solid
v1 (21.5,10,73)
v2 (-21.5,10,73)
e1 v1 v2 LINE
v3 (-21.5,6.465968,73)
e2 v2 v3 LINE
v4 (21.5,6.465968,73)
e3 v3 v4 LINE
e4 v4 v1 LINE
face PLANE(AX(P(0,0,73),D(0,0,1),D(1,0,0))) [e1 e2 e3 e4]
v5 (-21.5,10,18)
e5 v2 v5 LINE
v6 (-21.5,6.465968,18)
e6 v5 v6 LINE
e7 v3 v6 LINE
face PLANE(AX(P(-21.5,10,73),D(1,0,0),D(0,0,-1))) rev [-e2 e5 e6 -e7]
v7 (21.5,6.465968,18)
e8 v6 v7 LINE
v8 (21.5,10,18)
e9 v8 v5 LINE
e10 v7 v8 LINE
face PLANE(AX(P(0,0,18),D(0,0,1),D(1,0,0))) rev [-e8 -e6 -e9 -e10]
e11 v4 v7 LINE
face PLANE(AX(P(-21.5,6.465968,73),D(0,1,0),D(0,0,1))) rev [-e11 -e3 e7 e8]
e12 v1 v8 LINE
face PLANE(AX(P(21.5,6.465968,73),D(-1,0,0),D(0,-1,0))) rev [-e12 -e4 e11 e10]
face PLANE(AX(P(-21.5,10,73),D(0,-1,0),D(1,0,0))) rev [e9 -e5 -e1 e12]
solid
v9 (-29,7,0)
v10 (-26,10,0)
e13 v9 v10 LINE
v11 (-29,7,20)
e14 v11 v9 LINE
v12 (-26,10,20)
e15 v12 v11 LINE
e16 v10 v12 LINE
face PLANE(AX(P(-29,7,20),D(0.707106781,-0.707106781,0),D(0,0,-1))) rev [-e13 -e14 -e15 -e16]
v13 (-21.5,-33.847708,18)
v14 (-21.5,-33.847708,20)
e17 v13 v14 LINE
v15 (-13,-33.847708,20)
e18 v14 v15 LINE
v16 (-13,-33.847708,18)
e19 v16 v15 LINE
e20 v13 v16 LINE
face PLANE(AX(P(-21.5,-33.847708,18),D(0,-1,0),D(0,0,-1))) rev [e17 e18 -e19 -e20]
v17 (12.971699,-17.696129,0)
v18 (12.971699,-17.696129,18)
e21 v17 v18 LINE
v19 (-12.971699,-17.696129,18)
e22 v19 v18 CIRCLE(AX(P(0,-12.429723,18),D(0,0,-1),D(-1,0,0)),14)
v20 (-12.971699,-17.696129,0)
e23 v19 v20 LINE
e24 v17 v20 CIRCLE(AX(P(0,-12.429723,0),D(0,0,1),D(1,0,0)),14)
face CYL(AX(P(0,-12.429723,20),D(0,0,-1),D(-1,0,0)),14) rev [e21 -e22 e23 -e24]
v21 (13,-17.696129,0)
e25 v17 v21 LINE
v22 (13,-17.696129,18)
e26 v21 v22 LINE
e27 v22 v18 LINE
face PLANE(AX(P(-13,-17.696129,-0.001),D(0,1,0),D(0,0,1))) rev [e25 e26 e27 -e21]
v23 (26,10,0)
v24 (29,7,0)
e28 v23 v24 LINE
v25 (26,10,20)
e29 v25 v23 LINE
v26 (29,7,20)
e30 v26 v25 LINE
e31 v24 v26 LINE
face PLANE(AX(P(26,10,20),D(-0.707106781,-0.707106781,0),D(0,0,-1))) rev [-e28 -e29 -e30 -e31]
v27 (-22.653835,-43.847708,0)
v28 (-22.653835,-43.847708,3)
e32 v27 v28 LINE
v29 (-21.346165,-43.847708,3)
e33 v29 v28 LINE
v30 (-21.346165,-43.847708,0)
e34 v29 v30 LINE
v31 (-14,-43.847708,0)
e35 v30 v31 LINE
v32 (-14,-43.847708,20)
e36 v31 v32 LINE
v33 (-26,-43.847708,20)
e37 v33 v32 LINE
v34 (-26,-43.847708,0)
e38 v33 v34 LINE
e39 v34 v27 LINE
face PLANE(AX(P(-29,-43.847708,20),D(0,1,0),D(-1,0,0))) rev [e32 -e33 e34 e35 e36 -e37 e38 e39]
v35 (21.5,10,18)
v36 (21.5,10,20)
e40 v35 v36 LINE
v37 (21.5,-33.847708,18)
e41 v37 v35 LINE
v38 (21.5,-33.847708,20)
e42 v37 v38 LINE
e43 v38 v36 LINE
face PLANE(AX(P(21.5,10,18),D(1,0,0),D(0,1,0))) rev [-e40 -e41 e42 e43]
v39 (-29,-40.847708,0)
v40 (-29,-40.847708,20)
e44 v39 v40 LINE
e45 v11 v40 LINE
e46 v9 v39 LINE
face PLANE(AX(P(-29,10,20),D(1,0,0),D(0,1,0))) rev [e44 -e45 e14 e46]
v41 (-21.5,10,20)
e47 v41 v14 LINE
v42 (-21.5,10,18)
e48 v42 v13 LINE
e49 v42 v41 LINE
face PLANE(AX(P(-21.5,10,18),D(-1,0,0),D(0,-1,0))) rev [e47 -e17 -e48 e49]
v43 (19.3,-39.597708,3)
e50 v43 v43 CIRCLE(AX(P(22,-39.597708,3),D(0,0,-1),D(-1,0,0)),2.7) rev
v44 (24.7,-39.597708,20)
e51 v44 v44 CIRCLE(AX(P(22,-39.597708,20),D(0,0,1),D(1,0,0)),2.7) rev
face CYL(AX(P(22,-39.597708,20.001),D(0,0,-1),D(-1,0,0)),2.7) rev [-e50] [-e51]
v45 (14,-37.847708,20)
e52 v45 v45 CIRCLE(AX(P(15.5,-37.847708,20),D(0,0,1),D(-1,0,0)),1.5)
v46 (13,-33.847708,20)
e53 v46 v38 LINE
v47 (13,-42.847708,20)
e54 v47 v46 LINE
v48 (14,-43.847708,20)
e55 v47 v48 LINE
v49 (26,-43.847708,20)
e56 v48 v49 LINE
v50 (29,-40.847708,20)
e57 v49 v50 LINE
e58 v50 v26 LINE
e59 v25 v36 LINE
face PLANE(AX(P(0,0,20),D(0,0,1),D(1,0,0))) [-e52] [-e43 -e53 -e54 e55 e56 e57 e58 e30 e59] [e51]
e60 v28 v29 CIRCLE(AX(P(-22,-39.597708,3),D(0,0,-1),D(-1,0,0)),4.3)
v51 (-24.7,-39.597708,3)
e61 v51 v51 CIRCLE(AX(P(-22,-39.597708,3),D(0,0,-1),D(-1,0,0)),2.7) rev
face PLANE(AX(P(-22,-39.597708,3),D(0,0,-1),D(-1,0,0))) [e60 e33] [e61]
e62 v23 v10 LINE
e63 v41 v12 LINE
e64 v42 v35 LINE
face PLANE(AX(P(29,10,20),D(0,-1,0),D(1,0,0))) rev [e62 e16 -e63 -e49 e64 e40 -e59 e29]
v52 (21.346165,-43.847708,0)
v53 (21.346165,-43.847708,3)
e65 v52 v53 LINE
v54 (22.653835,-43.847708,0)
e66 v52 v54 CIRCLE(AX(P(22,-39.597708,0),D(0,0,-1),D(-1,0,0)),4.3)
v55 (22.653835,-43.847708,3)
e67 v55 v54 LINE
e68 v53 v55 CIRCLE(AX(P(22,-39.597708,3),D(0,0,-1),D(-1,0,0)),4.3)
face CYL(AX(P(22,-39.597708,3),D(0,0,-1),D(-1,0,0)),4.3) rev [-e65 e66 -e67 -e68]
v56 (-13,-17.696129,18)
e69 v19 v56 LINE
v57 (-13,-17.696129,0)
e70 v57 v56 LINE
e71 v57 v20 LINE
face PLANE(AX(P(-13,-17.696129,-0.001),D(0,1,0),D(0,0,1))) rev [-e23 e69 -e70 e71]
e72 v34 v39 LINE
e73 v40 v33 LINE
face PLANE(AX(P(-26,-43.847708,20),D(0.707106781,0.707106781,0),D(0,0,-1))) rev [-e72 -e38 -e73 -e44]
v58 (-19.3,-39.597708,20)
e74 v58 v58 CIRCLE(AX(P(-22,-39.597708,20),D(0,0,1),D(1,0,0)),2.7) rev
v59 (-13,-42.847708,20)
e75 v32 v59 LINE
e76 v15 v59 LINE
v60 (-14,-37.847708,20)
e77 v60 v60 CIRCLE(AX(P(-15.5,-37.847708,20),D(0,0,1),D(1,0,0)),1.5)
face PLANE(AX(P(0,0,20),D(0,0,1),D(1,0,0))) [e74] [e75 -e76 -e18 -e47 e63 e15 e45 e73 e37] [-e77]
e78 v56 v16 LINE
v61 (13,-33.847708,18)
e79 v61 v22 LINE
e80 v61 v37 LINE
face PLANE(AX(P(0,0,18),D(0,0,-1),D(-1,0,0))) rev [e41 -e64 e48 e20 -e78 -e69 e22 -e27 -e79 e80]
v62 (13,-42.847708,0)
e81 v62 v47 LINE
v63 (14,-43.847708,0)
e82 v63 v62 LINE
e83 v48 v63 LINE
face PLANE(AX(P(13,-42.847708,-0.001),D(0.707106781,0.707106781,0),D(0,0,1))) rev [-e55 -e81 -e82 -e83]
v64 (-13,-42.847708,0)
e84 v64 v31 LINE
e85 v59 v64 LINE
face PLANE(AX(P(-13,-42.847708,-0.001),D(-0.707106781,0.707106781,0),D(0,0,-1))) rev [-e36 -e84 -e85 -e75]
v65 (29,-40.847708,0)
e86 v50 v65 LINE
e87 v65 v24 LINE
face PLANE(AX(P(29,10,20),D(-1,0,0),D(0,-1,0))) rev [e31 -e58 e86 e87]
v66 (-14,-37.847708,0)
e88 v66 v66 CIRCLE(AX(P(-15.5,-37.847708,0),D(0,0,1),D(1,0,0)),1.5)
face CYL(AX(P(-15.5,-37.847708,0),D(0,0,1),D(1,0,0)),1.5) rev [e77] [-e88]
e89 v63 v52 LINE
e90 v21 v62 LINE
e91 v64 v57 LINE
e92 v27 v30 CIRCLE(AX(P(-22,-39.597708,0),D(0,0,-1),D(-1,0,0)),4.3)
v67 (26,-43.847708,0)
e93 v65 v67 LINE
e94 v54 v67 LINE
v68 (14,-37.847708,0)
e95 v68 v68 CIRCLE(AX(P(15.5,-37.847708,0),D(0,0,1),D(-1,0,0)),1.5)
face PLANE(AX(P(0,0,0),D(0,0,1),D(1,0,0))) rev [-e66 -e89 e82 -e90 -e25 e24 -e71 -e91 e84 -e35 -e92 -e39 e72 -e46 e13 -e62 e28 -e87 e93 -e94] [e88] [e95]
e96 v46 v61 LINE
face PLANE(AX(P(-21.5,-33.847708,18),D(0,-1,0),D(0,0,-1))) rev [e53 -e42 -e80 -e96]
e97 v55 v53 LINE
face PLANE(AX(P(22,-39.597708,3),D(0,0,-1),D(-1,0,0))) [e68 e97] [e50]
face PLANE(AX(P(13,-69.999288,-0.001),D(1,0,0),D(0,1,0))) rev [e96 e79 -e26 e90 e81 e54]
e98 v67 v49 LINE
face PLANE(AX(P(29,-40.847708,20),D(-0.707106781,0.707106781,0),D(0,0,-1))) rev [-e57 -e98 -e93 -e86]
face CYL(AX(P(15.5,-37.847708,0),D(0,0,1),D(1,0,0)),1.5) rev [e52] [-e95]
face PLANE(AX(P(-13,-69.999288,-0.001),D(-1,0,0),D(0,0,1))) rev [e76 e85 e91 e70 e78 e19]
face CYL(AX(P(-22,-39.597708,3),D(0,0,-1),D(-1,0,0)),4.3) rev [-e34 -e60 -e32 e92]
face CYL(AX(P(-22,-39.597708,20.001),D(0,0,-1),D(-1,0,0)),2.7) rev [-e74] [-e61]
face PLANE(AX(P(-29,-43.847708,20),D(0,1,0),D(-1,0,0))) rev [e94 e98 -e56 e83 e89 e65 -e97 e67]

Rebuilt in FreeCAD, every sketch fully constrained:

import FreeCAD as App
import Part
import Sketcher
from FreeCAD import Vector
Q = App.Units.Quantity


def edges_at(feature, points):
    """Names of the edges that pass closest to the given points."""
    edges = feature.Shape.Edges
    near = lambda p: min(range(len(edges)), key=lambda i: edges[i].distToShape(Part.Vertex(*p))[0])
    return sorted({f"Edge{near(p) + 1}" for p in points})


def add_polygon(sketch, points):
    """Adds a closed chain of lines whose ends are joined by coincident constraints."""
    first, n = sketch.GeometryCount, len(points)
    for a, b in zip(points, points[1:] + points[:1]):
        sketch.addGeometry(Part.LineSegment(App.Vector(*a, 0), App.Vector(*b, 0)), False)
    for i in range(n):
        sketch.addConstraint(Sketcher.Constraint("Coincident", first + i, 2, first + (i + 1) % n, 1))

doc = App.newDocument("Part")
body = doc.addObject("PartDesign::Body", "Body")

# Sketch on XY plane
sketch1 = doc.addObject("Sketcher::SketchObject", "Sketch")
body.addObject(sketch1)
sketch1.AttachmentSupport = (doc.XY_Plane, [""])
sketch1.MapMode = "FlatFace"
add_polygon(sketch1, [(29, 10), (-29, 10), (-29, -43.847708), (29, -43.847708)])  # lines 0-3
sketch1.addGeometry(Part.Circle(Vector(0, -12.429723, 0), Vector(0, 0, 1), 14), False)  # 4
sketch1.addConstraint([
    Sketcher.Constraint("Horizontal", 0),
    Sketcher.Constraint("Vertical", 1),
    Sketcher.Constraint("Horizontal", 2),
    Sketcher.Constraint("Vertical", 3),
    Sketcher.Constraint("PointOnObject", 4, 3, -2),
    Sketcher.Constraint("Diameter", 4, Q("28 mm")),
    Sketcher.Constraint("DistanceX", 0, 2, 0, 1, Q("58 mm")),
    Sketcher.Constraint("DistanceX", 0, 2, -1, 1, Q("29 mm")),
    Sketcher.Constraint("DistanceY", -1, 1, 0, 2, Q("10 mm")),
    Sketcher.Constraint("DistanceY", 1, 2, 1, 1, Q("53.847708 mm")),
    Sketcher.Constraint("DistanceY", 4, 3, -1, 1, Q("12.429723 mm")),
])
pad1 = doc.addObject("PartDesign::Pad", "Pad")
body.addObject(pad1)
pad1.Profile = sketch1
pad1.Length = 20

# Sketch on XY plane
sketch2 = doc.addObject("Sketcher::SketchObject", "Sketch001")
body.addObject(sketch2)
sketch2.AttachmentSupport = (doc.XY_Plane, [""])
sketch2.MapMode = "FlatFace"
sketch2.addGeometry(Part.Circle(Vector(22, -39.597708, 0), Vector(0, 0, 1), 2.7), False)
sketch2.addConstraint([
    Sketcher.Constraint("Diameter", 0, Q("5.4 mm")),
    Sketcher.Constraint("DistanceX", -1, 1, 0, 3, Q("22 mm")),
    Sketcher.Constraint("DistanceY", 0, 3, -1, 1, Q("39.597708 mm")),
])
pocket1 = doc.addObject("PartDesign::Pocket", "Pocket")
body.addObject(pocket1)
pocket1.Profile = sketch2
pocket1.Type = "UpToFirst"
pocket1.Reversed = True

# Sketch on XY plane
sketch3 = doc.addObject("Sketcher::SketchObject", "Sketch002")
body.addObject(sketch3)
sketch3.AttachmentSupport = (doc.XY_Plane, [""])
sketch3.MapMode = "FlatFace"
sketch3.addGeometry(Part.Circle(Vector(-22, -39.597708, 0), Vector(0, 0, 1), 2.7), False)
sketch3.addConstraint([
    Sketcher.Constraint("Diameter", 0, Q("5.4 mm")),
    Sketcher.Constraint("DistanceX", 0, 3, -1, 1, Q("22 mm")),
    Sketcher.Constraint("DistanceY", 0, 3, -1, 1, Q("39.597708 mm")),
])
pocket2 = doc.addObject("PartDesign::Pocket", "Pocket001")
body.addObject(pocket2)
pocket2.Profile = sketch3
pocket2.Type = "UpToFirst"
pocket2.Reversed = True

# Sketch on XY plane
sketch4 = doc.addObject("Sketcher::SketchObject", "Sketch003")
body.addObject(sketch4)
sketch4.AttachmentSupport = (doc.XY_Plane, [""])
sketch4.MapMode = "FlatFace"
sketch4.addGeometry([
    Part.Circle(Vector(22, -39.597708, 0), Vector(0, 0, 1), 4.3),
    Part.Circle(Vector(-22, -39.597708, 0), Vector(0, 0, 1), 4.3),
], False)
sketch4.addConstraint([
    Sketcher.Constraint("Equal", 0, 1),
    Sketcher.Constraint("Symmetric", 0, 3, 1, 3, -2),
    Sketcher.Constraint("Diameter", 0, Q("8.6 mm")),
    Sketcher.Constraint("DistanceX", -1, 1, 0, 3, Q("22 mm")),
    Sketcher.Constraint("DistanceY", 0, 3, -1, 1, Q("39.597708 mm")),
])
pocket3 = doc.addObject("PartDesign::Pocket", "Pocket002")
body.addObject(pocket3)
pocket3.Profile = sketch4
pocket3.Length = 3
pocket3.Reversed = True
doc.recompute()

chamfer = doc.addObject("PartDesign::Chamfer", "Chamfer")
body.addObject(chamfer)
chamfer.Base = (pocket3, edges_at(pocket3, [
    (-29, 10, 10),
    (29, 10, 10),
    (29, -43.848, 10),
    (-29, -43.848, 10),
]))
chamfer.Size = 3

# Sketch on XY plane
sketch5 = doc.addObject("Sketcher::SketchObject", "Sketch004")
body.addObject(sketch5)
sketch5.AttachmentSupport = (doc.XY_Plane, [""])
sketch5.MapMode = "FlatFace"
sketch5.AttachmentOffset = App.Placement(Vector(0, 0, 20), App.Rotation())
add_polygon(sketch5, [(0, 25.079246), (-21.5, 10), (-21.5, -33.847708), (21.5, -33.847708), (21.5, 10)])  # lines 0-4
sketch5.addConstraint([
    Sketcher.Constraint("Vertical", 1),
    Sketcher.Constraint("Horizontal", 2),
    Sketcher.Constraint("Vertical", 3),
    Sketcher.Constraint("Symmetric", 0, 2, 3, 2, -2),
    Sketcher.Constraint("PointOnObject", 4, 2, -2),
    Sketcher.Constraint("DistanceX", 2, 1, 2, 2, Q("43 mm")),
    Sketcher.Constraint("DistanceY", -1, 1, 0, 2, Q("10 mm")),
    Sketcher.Constraint("DistanceY", 1, 2, 1, 1, Q("43.847708 mm")),
    Sketcher.Constraint("Distance", 0, Q("26.260877 mm")),
])
pocket4 = doc.addObject("PartDesign::Pocket", "Pocket003")
body.addObject(pocket4)
pocket4.Profile = sketch5
pocket4.Length = 2

# Sketch on XY plane
sketch6 = doc.addObject("Sketcher::SketchObject", "Sketch005")
body.addObject(sketch6)
sketch6.AttachmentSupport = (doc.XY_Plane, [""])
sketch6.MapMode = "FlatFace"
sketch6.AttachmentOffset = App.Placement(Vector(0, 0, 20), App.Rotation())
add_polygon(sketch6, [(-13, -17.696129), (-13, -69.999288), (13, -69.999288), (13, -17.696129)])  # lines 0-3
sketch6.addConstraint([
    Sketcher.Constraint("Vertical", 0),
    Sketcher.Constraint("Horizontal", 1),
    Sketcher.Constraint("Vertical", 2),
    Sketcher.Constraint("Horizontal", 3),
    Sketcher.Constraint("DistanceX", 1, 1, 1, 2, Q("26 mm")),
    Sketcher.Constraint("DistanceX", 0, 2, -1, 1, Q("13 mm")),
    Sketcher.Constraint("DistanceY", 0, 2, 0, 1, Q("52.303159 mm")),
    Sketcher.Constraint("DistanceY", 2, 2, -1, 1, Q("17.696129 mm")),
])
pocket5 = doc.addObject("PartDesign::Pocket", "Pocket004")
body.addObject(pocket5)
pocket5.Profile = sketch6
pocket5.Length = 20
doc.recompute()

chamfer2 = doc.addObject("PartDesign::Chamfer", "Chamfer001")
body.addObject(chamfer2)
chamfer2.Base = (pocket5, edges_at(pocket5, [(13, -43.848, 10), (-13, -43.848, 10)]))
chamfer2.Size = 1

# Sketch on XY plane
sketch7 = doc.addObject("Sketcher::SketchObject", "Sketch006")
body.addObject(sketch7)
sketch7.AttachmentSupport = (doc.XY_Plane, [""])
sketch7.MapMode = "FlatFace"
sketch7.AttachmentOffset = App.Placement(Vector(0, 0, 20), App.Rotation())
sketch7.addGeometry([
    Part.Circle(Vector(-15.5, -37.847708, 0), Vector(0, 0, 1), 1.5),
    Part.Circle(Vector(15.5, -37.847708, 0), Vector(0, 0, 1), 1.5),
], False)
sketch7.addConstraint([
    Sketcher.Constraint("Equal", 0, 1),
    Sketcher.Constraint("Symmetric", 0, 3, 1, 3, -2),
    Sketcher.Constraint("Diameter", 0, Q("3 mm")),
    Sketcher.Constraint("DistanceX", 0, 3, 1, 3, Q("31 mm")),
    Sketcher.Constraint("DistanceY", 0, 3, -1, 1, Q("37.847708 mm")),
])
pocket6 = doc.addObject("PartDesign::Pocket", "Pocket005")
body.addObject(pocket6)
pocket6.Profile = sketch7
pocket6.Type = "ThroughAll"
body2 = doc.addObject("PartDesign::Body", "Body001")

# Sketch on XY plane
sketch8 = doc.addObject("Sketcher::SketchObject", "Sketch007")
body2.addObject(sketch8)
sketch8.AttachmentSupport = (doc.getObject("XY_Plane001"), [""])
sketch8.MapMode = "FlatFace"
sketch8.AttachmentOffset = App.Placement(Vector(0, 0, 18), App.Rotation())
add_polygon(sketch8, [(-21.5, 10), (-21.5, 6.465968), (21.5, 6.465968), (21.5, 10)])  # lines 0-3
sketch8.addConstraint([
    Sketcher.Constraint("Vertical", 0),
    Sketcher.Constraint("Horizontal", 1),
    Sketcher.Constraint("Vertical", 2),
    Sketcher.Constraint("Horizontal", 3),
    Sketcher.Constraint("DistanceX", 1, 1, 1, 2, Q("43 mm")),
    Sketcher.Constraint("DistanceY", -1, 1, 2, 2, Q("10 mm")),
    Sketcher.Constraint("DistanceX", 0, 2, -1, 1, Q("21.5 mm")),
    Sketcher.Constraint("DistanceY", 0, 2, 0, 1, Q("3.534032 mm")),
])
pad2 = doc.addObject("PartDesign::Pad", "Pad001")
body2.addObject(pad2)
pad2.Profile = sketch8
pad2.Length = 55

doc.recompute()
